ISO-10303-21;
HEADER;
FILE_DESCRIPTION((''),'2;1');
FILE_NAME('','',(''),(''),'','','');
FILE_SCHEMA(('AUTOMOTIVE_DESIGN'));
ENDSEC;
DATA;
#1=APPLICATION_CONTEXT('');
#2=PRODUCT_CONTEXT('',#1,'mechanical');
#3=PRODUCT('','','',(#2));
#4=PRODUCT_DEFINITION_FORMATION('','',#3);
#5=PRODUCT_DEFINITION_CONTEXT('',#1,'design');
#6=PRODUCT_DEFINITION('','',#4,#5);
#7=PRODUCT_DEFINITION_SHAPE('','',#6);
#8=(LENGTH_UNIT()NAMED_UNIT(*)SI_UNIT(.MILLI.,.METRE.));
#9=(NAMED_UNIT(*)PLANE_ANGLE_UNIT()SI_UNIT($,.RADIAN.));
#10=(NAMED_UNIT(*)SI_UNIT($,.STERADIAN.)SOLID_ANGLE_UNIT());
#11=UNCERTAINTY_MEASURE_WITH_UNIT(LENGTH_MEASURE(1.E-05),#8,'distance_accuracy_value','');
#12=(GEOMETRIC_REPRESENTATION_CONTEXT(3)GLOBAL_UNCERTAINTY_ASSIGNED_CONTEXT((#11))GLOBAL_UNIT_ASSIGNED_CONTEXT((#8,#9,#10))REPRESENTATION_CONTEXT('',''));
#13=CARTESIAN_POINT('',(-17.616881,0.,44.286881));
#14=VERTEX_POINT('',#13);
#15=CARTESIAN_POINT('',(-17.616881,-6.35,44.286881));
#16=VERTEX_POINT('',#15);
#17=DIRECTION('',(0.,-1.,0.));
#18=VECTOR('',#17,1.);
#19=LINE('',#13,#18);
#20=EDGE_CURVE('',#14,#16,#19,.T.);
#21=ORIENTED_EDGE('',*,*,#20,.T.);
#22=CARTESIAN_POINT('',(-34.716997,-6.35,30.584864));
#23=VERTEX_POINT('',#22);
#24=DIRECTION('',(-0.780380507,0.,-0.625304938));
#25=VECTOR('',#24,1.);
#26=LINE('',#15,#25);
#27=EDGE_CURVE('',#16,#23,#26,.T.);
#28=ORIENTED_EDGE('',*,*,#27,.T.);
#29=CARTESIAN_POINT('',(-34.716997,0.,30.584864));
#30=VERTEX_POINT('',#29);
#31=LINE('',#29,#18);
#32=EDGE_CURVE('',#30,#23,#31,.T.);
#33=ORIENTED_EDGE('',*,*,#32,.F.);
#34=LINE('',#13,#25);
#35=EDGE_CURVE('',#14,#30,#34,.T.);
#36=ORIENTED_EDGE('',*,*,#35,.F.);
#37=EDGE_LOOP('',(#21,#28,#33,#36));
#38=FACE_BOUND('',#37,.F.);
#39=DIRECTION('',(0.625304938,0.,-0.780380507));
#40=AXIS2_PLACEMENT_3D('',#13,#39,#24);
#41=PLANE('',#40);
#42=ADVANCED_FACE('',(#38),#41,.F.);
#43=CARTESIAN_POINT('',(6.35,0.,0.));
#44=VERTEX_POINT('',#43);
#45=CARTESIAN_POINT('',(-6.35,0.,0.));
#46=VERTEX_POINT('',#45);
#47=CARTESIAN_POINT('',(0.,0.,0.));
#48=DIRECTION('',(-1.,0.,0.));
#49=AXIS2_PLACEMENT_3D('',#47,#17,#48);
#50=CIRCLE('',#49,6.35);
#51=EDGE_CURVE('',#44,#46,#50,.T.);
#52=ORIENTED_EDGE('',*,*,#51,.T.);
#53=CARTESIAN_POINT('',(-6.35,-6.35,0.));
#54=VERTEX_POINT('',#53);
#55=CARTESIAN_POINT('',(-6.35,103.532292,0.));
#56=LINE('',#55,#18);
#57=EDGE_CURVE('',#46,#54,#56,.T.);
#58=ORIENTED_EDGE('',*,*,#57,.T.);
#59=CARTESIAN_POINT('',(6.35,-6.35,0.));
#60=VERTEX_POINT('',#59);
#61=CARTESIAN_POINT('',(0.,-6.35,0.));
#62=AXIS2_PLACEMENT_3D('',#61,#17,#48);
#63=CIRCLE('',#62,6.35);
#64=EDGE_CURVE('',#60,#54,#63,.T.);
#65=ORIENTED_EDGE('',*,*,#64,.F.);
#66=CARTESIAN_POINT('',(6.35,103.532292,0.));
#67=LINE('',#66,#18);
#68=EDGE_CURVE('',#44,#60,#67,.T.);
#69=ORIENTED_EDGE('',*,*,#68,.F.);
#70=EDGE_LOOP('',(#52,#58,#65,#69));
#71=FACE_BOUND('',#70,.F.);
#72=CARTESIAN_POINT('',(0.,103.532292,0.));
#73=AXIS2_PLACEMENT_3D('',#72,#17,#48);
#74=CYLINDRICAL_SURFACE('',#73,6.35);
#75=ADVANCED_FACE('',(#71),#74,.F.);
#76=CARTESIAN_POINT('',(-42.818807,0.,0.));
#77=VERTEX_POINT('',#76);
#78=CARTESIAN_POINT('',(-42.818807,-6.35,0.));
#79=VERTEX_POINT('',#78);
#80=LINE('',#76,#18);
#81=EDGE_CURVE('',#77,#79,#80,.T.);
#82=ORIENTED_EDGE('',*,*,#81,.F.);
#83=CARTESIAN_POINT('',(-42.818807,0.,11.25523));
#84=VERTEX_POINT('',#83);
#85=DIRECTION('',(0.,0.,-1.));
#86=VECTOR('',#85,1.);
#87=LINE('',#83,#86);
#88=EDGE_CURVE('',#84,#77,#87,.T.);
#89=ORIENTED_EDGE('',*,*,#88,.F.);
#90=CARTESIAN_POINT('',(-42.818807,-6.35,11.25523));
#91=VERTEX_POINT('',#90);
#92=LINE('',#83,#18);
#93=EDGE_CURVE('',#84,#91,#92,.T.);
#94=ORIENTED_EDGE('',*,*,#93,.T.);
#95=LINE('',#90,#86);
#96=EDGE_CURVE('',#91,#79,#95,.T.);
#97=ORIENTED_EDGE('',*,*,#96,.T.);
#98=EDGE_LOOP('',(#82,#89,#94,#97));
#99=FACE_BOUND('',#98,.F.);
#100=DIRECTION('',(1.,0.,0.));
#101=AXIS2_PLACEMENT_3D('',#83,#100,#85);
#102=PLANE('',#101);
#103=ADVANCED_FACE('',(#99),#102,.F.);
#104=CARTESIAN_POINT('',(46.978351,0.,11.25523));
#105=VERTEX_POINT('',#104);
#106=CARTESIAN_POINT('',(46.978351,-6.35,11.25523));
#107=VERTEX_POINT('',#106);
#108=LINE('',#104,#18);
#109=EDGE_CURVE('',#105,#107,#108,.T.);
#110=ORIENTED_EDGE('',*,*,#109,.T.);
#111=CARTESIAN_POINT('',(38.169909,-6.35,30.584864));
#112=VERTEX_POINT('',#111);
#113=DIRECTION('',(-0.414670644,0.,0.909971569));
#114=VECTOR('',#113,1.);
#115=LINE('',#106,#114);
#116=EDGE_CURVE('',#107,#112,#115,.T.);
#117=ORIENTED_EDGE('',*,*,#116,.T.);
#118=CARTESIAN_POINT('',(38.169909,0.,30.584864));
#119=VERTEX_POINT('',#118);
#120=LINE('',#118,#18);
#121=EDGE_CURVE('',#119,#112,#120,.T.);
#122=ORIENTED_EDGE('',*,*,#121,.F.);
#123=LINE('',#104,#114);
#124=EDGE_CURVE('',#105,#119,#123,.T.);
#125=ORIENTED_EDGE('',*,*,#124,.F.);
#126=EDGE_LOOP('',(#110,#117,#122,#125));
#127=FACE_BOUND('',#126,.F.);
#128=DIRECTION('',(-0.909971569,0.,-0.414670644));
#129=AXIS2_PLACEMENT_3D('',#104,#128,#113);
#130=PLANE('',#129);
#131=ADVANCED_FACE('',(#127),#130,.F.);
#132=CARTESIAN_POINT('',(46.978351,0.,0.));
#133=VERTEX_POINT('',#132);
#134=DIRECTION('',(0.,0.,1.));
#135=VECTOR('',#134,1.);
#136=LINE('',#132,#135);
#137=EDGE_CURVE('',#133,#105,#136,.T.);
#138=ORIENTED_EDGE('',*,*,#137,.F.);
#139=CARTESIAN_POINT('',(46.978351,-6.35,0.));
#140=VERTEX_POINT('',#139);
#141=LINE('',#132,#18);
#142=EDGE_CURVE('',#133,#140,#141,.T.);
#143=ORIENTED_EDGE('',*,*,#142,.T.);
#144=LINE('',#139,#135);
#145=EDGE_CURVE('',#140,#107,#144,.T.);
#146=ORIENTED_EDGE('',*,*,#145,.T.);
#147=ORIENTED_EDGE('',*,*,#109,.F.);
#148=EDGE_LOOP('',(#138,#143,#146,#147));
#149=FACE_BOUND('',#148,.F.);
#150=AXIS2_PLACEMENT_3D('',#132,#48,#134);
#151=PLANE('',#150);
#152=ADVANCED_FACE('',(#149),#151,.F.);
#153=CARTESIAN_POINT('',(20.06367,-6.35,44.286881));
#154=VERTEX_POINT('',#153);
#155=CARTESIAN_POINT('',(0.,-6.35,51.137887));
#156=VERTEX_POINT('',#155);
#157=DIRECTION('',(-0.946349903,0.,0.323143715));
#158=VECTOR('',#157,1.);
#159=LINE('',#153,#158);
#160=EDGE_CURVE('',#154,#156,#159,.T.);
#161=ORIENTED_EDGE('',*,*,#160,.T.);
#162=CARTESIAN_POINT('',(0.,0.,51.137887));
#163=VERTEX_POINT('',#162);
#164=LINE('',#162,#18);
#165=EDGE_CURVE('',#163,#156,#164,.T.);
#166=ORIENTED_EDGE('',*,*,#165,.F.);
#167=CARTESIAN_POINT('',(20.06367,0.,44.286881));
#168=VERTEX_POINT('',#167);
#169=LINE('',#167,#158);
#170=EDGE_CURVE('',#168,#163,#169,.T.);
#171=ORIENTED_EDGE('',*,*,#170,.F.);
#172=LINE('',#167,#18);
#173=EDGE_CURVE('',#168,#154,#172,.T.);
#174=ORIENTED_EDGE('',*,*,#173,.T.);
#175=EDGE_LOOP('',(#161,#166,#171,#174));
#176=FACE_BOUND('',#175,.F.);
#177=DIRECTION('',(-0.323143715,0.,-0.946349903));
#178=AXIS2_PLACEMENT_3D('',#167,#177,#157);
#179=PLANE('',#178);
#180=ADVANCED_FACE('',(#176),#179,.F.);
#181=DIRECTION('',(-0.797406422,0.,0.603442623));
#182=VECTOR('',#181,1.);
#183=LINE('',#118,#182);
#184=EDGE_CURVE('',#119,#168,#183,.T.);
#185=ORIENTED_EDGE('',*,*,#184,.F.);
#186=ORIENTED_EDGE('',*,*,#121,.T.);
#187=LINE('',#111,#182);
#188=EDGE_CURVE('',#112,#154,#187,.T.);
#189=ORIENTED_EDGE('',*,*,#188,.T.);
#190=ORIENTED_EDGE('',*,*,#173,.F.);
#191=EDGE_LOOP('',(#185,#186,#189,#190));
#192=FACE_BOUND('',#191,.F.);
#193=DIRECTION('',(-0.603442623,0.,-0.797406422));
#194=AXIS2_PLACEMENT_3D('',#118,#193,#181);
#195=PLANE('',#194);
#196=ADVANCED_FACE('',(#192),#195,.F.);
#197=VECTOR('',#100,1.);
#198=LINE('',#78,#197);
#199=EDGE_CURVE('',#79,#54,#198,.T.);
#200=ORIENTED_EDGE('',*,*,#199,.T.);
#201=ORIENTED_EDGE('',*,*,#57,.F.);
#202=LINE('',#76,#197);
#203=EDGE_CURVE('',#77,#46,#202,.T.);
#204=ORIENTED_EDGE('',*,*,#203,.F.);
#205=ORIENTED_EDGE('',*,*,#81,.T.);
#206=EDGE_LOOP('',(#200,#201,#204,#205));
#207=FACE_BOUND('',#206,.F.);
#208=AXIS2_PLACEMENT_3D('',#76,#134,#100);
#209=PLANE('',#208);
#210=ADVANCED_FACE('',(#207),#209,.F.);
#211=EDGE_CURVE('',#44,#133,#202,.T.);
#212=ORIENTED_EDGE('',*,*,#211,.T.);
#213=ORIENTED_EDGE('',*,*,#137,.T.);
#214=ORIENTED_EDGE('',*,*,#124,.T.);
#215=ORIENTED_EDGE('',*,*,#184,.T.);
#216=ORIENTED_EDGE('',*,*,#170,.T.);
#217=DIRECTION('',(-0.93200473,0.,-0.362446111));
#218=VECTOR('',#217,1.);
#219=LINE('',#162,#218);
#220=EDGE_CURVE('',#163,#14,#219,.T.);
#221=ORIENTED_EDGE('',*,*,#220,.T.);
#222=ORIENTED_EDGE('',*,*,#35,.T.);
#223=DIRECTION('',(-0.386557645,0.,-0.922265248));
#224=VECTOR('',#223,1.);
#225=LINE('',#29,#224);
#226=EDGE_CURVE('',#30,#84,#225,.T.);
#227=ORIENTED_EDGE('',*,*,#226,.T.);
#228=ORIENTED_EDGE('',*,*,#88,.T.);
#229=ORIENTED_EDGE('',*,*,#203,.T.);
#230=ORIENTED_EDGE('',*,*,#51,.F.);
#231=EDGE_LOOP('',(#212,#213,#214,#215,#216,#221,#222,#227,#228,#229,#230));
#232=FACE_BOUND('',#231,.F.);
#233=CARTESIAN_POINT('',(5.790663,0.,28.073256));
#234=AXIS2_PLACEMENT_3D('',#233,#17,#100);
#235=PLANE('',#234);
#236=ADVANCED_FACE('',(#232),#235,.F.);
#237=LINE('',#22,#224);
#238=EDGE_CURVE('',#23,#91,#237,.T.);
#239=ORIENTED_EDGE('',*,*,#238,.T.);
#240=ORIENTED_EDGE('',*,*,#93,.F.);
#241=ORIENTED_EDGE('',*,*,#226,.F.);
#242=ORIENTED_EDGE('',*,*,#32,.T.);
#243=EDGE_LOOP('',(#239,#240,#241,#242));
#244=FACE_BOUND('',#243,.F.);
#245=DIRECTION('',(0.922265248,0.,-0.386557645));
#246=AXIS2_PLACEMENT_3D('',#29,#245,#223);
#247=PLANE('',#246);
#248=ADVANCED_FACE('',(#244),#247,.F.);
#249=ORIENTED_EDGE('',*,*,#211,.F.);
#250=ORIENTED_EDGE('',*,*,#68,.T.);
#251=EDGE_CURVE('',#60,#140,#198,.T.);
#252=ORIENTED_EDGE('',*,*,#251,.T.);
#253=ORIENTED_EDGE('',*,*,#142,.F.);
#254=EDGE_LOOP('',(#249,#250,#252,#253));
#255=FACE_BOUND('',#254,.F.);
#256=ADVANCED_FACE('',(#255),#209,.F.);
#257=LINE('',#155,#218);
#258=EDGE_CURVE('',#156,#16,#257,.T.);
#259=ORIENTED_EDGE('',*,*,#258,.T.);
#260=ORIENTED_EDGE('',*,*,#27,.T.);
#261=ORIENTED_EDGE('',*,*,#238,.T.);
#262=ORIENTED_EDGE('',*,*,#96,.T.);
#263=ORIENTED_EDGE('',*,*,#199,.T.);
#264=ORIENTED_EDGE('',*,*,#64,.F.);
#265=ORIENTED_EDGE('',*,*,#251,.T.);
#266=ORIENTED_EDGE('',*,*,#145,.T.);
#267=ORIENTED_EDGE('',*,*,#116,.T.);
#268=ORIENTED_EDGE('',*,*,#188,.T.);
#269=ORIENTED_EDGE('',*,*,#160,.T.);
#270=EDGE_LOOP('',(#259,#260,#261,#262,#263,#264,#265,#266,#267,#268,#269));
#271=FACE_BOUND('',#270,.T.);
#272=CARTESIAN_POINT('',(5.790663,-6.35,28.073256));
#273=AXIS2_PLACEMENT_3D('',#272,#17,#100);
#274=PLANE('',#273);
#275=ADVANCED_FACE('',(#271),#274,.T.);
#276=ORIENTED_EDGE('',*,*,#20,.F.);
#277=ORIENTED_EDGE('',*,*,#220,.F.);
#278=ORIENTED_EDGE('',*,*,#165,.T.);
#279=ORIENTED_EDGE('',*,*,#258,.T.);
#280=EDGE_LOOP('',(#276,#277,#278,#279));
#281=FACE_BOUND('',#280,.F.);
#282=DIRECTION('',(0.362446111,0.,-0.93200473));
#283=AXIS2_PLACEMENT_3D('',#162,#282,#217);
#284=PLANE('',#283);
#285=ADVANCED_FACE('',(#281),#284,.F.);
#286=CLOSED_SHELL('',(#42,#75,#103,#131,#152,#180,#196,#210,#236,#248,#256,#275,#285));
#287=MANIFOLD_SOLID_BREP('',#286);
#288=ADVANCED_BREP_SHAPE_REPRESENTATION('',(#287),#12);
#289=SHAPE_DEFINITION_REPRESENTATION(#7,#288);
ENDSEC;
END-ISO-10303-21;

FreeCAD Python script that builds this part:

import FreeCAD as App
import Part
import Sketcher
from FreeCAD import Vector
Q = App.Units.Quantity


def add_polygon(sketch, points):
    """Adds a closed chain of lines whose ends are joined by coincident constraints."""
    first, n = sketch.GeometryCount, len(points)
    for a, b in zip(points, points[1:] + points[:1]):
        sketch.addGeometry(Part.LineSegment(App.Vector(*a, 0), App.Vector(*b, 0)), False)
    for i in range(n):
        sketch.addConstraint(Sketcher.Constraint("Coincident", first + i, 2, first + (i + 1) % n, 1))

doc = App.newDocument("Part")
body = doc.addObject("PartDesign::Body", "Body")

# Sketch on XZ plane
sketch1 = body.newObject("Sketcher::SketchObject", "Sketch")
sketch1.AttachmentSupport = (doc.getObject("XZ_Plane"), [""])
sketch1.MapMode = "FlatFace"
add_polygon(sketch1, [(20.06367, 44.286881), (0, 51.137887), (-17.616881, 44.286881), (-34.716997, 30.584864), (-42.818807, 11.25523), (-42.818807, 0), (46.978351, 0), (46.978351, 11.25523), (38.169909, 30.584864)])  # lines 0-8
sketch1.addConstraint(Sketcher.Constraint("Vertical", 4))
sketch1.addConstraint(Sketcher.Constraint("Horizontal", 5))
sketch1.addConstraint(Sketcher.Constraint("Vertical", 6))
sketch1.addConstraint(Sketcher.Constraint("PointOnObject", 0, 2, -2))
sketch1.addConstraint(Sketcher.Constraint("PointOnObject", 4, 2, -1))
sketch1.addConstraint(Sketcher.Constraint("Horizontal", 3, 2, 6, 2))
sketch1.addConstraint(Sketcher.Constraint("Horizontal", 2, 2, 7, 2))
sketch1.addConstraint(Sketcher.Constraint("Horizontal", 1, 2, 8, 2))
sketch1.addConstraint(Sketcher.Constraint("Distance", 7, Q("0.8363 in")))
sketch1.addConstraint(Sketcher.Constraint("DistanceY", 4, 2, 4, 1, Q("11.25523 mm")))
sketch1.addConstraint(Sketcher.Constraint("Distance", 0, Q("21.201112 mm")))
sketch1.addConstraint(Sketcher.Constraint("DistanceX", 5, 1, 5, 2, Q("89.797158 mm")))
sketch1.addConstraint(Sketcher.Constraint("DistanceX", 1, 2, -1, 1, Q("17.616881 mm")))
sketch1.addConstraint(Sketcher.Constraint("DistanceY", -1, 1, 1, 2, Q("44.286881 mm")))
sketch1.addConstraint(Sketcher.Constraint("DistanceX", -1, 1, 5, 2, Q("46.978351 mm")))
sketch1.addConstraint(Sketcher.Constraint("DistanceX", -1, 1, 7, 2, Q("38.169909 mm")))
sketch1.addConstraint(Sketcher.Constraint("DistanceX", -1, 1, 8, 2, Q("20.06367 mm")))
sketch1.addConstraint(Sketcher.Constraint("DistanceX", 3, 2, 2, 2, Q("8.10181 mm")))
pad1 = body.newObject("PartDesign::Pad", "Pad")
pad1.Profile = sketch1
pad1.Length = Q("0.25 in")

# Sketch on XZ plane
sketch2 = body.newObject("Sketcher::SketchObject", "Sketch001")
sketch2.AttachmentSupport = (doc.getObject("XZ_Plane"), [""])
sketch2.MapMode = "FlatFace"
sketch2.addGeometry(Part.Circle(Vector(0, 0, 0), Vector(0, 0, 1), 6.35), False)
sketch2.addConstraint(Sketcher.Constraint("Coincident", 0, 3, -1, 1))
sketch2.addConstraint(Sketcher.Constraint("Diameter", 0, Q("0.5 in")))
doc.recompute()
hole = body.newObject("PartDesign::Hole", "Hole")
hole.Profile = sketch2
hole.ThreadType = "None"
hole.Diameter = Q("0.5 in")
hole.DepthType = "ThroughAll"
hole.Reversed = True

doc.recompute()
